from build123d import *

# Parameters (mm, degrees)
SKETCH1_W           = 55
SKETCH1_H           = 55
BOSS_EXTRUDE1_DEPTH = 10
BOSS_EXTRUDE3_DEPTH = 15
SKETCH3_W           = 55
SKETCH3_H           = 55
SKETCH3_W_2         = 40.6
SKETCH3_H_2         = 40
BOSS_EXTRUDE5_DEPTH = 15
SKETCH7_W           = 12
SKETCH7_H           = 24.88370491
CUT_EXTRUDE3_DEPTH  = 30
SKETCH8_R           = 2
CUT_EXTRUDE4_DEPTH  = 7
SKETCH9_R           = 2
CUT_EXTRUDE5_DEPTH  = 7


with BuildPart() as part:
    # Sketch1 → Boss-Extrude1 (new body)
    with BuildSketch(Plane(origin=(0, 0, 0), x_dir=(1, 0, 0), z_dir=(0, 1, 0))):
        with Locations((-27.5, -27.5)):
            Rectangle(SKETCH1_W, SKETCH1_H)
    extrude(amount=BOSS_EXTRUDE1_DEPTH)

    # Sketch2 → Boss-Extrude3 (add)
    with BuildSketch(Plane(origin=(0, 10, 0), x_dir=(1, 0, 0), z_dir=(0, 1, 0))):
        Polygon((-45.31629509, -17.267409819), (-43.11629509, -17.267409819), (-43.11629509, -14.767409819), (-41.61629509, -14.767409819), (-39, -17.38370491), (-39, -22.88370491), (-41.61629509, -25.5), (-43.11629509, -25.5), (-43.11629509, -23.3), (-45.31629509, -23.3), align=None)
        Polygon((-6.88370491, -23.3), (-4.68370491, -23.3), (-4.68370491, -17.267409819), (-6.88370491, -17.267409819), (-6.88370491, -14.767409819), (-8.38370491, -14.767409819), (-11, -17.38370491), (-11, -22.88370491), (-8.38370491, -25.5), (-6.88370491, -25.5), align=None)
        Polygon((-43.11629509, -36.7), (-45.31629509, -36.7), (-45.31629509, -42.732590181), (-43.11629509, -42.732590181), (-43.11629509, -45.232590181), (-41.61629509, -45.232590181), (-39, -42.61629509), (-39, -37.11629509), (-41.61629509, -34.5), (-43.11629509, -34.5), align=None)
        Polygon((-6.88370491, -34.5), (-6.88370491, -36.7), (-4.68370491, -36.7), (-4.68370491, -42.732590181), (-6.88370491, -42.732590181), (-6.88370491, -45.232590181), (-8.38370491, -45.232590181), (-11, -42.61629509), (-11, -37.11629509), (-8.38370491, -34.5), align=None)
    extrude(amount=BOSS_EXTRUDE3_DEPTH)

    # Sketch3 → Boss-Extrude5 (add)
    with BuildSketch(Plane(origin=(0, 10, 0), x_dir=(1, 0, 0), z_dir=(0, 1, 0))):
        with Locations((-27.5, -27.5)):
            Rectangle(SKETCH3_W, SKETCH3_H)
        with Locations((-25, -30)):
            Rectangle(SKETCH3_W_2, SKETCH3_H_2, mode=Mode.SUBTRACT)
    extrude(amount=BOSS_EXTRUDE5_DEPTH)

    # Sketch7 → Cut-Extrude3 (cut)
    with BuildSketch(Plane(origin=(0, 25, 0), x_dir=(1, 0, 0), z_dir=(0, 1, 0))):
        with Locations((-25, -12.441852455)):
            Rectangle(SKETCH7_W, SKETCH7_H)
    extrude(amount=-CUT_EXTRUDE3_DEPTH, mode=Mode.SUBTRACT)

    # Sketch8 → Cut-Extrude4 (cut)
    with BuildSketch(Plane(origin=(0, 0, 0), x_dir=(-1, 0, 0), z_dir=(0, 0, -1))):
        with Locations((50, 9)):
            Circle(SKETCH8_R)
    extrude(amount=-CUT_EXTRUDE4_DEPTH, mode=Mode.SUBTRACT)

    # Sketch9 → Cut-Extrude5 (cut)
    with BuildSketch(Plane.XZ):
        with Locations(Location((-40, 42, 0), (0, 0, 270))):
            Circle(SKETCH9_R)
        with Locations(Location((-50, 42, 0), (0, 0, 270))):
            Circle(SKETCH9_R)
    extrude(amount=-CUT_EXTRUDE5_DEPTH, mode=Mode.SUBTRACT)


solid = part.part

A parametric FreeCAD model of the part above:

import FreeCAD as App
import Part
import Sketcher


def add_polygon(sketch, points):
    """Adds a closed chain of lines whose ends are joined by coincident constraints."""
    first, n = sketch.GeometryCount, len(points)
    for a, b in zip(points, points[1:] + points[:1]):
        sketch.addGeometry(Part.LineSegment(App.Vector(*a, 0), App.Vector(*b, 0)), False)
    for i in range(n):
        sketch.addConstraint(Sketcher.Constraint("Coincident", first + i, 2, first + (i + 1) % n, 1))

doc = App.newDocument("Part")
params = doc.addObject("Spreadsheet::Sheet", "Params")
for row, (alias, value) in enumerate([
    ("sketch1_width", "55 mm"),
    ("pad1_length", "10 mm"),
    ("sketch2_width", "2.2 mm"),
    ("sketch2_width2", "1.5 mm"),
    ("sketch2_height", "5.5 mm"),
    ("sketch2_height2", "2.5 mm"),
    ("sketch2_length", "3.7 mm"),
    ("pad2_length", "15 mm"),
    ("sketch3_width", "55 mm"),
    ("sketch3_height", "40 mm"),
    ("sketch3_width2", "40.6 mm"),
    ("pad3_length", "15 mm"),
    ("sketch4_width", "12 mm"),
    ("pocket1_length", "30 mm"),
    ("sketch5_diameter", "4 mm"),
    ("pocket2_length", "7 mm"),
    ("sketch6_diameter", "4 mm"),
    ("pocket3_length", "7 mm"),
], start=1):
    params.set(f"A{row}", alias)
    params.set(f"B{row}", "=" + value)
    params.setAlias(f"B{row}", alias)

body = doc.addObject("PartDesign::Body", "Body")

# Sketch on XZ plane
sketch1 = body.newObject("Sketcher::SketchObject", "Sketch")
sketch1.AttachmentSupport = (doc.getObject("XZ_Plane"), [""])
sketch1.MapMode = "FlatFace"
add_polygon(sketch1, [(-55, 0), (-55, 55), (0, 55), (0, 0)])  # lines 0-3
sketch1.addConstraint(Sketcher.Constraint("Vertical", 0))
sketch1.addConstraint(Sketcher.Constraint("Horizontal", 1))
sketch1.addConstraint(Sketcher.Constraint("Vertical", 2))
sketch1.addConstraint(Sketcher.Constraint("Horizontal", 3))
sketch1.addConstraint(Sketcher.Constraint("Coincident", 2, 2, -1, 1))
sketch1.addConstraint(Sketcher.Constraint("Equal", 3, 0))
sketch1.addConstraint(Sketcher.Constraint("DistanceX", 1, 1, 1, 2, 55.0))
sketch1.setExpression("Constraints[10]", "Params.sketch1_width")
pad1 = body.newObject("PartDesign::Pad", "Pad")
pad1.Profile = sketch1
pad1.setExpression("Length", "Params.pad1_length")
pad1.Reversed = True

# Sketch on XZ plane
sketch2 = body.newObject("Sketcher::SketchObject", "Sketch001")
sketch2.AttachmentSupport = (doc.getObject("XZ_Plane"), [""])
sketch2.MapMode = "FlatFace"
sketch2.AttachmentOffset = App.Placement(App.Vector(0, 0, -10), App.Rotation())
add_polygon(sketch2, [(-43.1, 17.3), (-45.3, 17.3), (-45.3, 23.3), (-43.1, 23.3), (-43.1, 25.5), (-41.6, 25.5), (-39, 22.9), (-39, 17.4), (-41.6, 14.8), (-43.1, 14.8)])  # lines 0-9
add_polygon(sketch2, [(-6.9, 23.3), (-4.7, 23.3), (-4.7, 17.3), (-6.9, 17.3), (-6.9, 14.8), (-8.4, 14.8), (-11, 17.4), (-11, 22.9), (-8.4, 25.5), (-6.9, 25.5)])  # lines 10-19
add_polygon(sketch2, [(-43.1, 36.7), (-45.3, 36.7), (-45.3, 42.7), (-43.1, 42.7), (-43.1, 45.2), (-41.6, 45.2), (-39, 42.6), (-39, 37.1), (-41.6, 34.5), (-43.1, 34.5)])  # lines 20-29
add_polygon(sketch2, [(-6.9, 36.7), (-6.9, 34.5), (-8.4, 34.5), (-11, 37.1), (-11, 42.6), (-8.4, 45.2), (-6.9, 45.2), (-6.9, 42.7), (-4.7, 42.7), (-4.7, 36.7)])  # lines 30-39
sketch2.addConstraint(Sketcher.Constraint("Horizontal", 0))
sketch2.addConstraint(Sketcher.Constraint("Vertical", 1))
sketch2.addConstraint(Sketcher.Constraint("Horizontal", 2))
sketch2.addConstraint(Sketcher.Constraint("Vertical", 3))
sketch2.addConstraint(Sketcher.Constraint("Horizontal", 4))
sketch2.addConstraint(Sketcher.Constraint("Vertical", 6))
sketch2.addConstraint(Sketcher.Constraint("Horizontal", 8))
sketch2.addConstraint(Sketcher.Constraint("Vertical", 9))
sketch2.addConstraint(Sketcher.Constraint("Horizontal", 10))
sketch2.addConstraint(Sketcher.Constraint("Vertical", 11))
sketch2.addConstraint(Sketcher.Constraint("Horizontal", 12))
sketch2.addConstraint(Sketcher.Constraint("Vertical", 13))
sketch2.addConstraint(Sketcher.Constraint("Horizontal", 14))
sketch2.addConstraint(Sketcher.Constraint("Vertical", 16))
sketch2.addConstraint(Sketcher.Constraint("Horizontal", 18))
sketch2.addConstraint(Sketcher.Constraint("Vertical", 19))
sketch2.addConstraint(Sketcher.Constraint("Horizontal", 20))
sketch2.addConstraint(Sketcher.Constraint("Vertical", 21))
sketch2.addConstraint(Sketcher.Constraint("Horizontal", 22))
sketch2.addConstraint(Sketcher.Constraint("Vertical", 23))
sketch2.addConstraint(Sketcher.Constraint("Horizontal", 24))
sketch2.addConstraint(Sketcher.Constraint("Vertical", 26))
sketch2.addConstraint(Sketcher.Constraint("Horizontal", 28))
sketch2.addConstraint(Sketcher.Constraint("Vertical", 29))
sketch2.addConstraint(Sketcher.Constraint("Vertical", 30))
sketch2.addConstraint(Sketcher.Constraint("Horizontal", 31))
sketch2.addConstraint(Sketcher.Constraint("Vertical", 33))
sketch2.addConstraint(Sketcher.Constraint("Horizontal", 35))
sketch2.addConstraint(Sketcher.Constraint("Vertical", 36))
sketch2.addConstraint(Sketcher.Constraint("Horizontal", 37))
sketch2.addConstraint(Sketcher.Constraint("Vertical", 38))
sketch2.addConstraint(Sketcher.Constraint("Horizontal", 39))
sketch2.addConstraint(Sketcher.Constraint("Perpendicular", 5, 7))
sketch2.addConstraint(Sketcher.Constraint("Perpendicular", 7, 15))
sketch2.addConstraint(Sketcher.Constraint("Perpendicular", 15, 17))
sketch2.addConstraint(Sketcher.Constraint("Perpendicular", 17, 25))
sketch2.addConstraint(Sketcher.Constraint("Perpendicular", 25, 27))
sketch2.addConstraint(Sketcher.Constraint("Perpendicular", 27, 32))
sketch2.addConstraint(Sketcher.Constraint("Perpendicular", 32, 34))
sketch2.addConstraint(Sketcher.Constraint("Horizontal", 2, 2, 10, 2))
sketch2.addConstraint(Sketcher.Constraint("Horizontal", 9, 2, 11, 2))
sketch2.addConstraint(Sketcher.Constraint("Horizontal", 8, 2, 13, 2))
sketch2.addConstraint(Sketcher.Constraint("Horizontal", 6, 2, 15, 2))
sketch2.addConstraint(Sketcher.Constraint("Horizontal", 5, 2, 16, 2))
sketch2.addConstraint(Sketcher.Constraint("Horizontal", 4, 2, 17, 2))
sketch2.addConstraint(Sketcher.Constraint("Horizontal", 28, 2, 30, 2))
sketch2.addConstraint(Sketcher.Constraint("Horizontal", 26, 2, 32, 2))
sketch2.addConstraint(Sketcher.Constraint("Horizontal", 25, 2, 33, 2))
sketch2.addConstraint(Sketcher.Constraint("Horizontal", 24, 2, 34, 2))
sketch2.addConstraint(Sketcher.Constraint("Horizontal", 22, 2, 36, 2))
sketch2.addConstraint(Sketcher.Constraint("Horizontal", 29, 2, 38, 2))
sketch2.addConstraint(Sketcher.Constraint("Vertical", 4, 2, 7, 2))
sketch2.addConstraint(Sketcher.Constraint("Vertical", 3, 2, 8, 2))
sketch2.addConstraint(Sketcher.Constraint("Vertical", 14, 2, 17, 2))
sketch2.addConstraint(Sketcher.Constraint("Vertical", 13, 2, 18, 2))
sketch2.addConstraint(Sketcher.Constraint("Vertical", 1, 2, 20, 2))
sketch2.addConstraint(Sketcher.Constraint("Vertical", 9, 2, 22, 2))
sketch2.addConstraint(Sketcher.Constraint("Vertical", 7, 2, 24, 2))
sketch2.addConstraint(Sketcher.Constraint("Vertical", 6, 2, 25, 2))
sketch2.addConstraint(Sketcher.Constraint("Vertical", 24, 2, 27, 2))
sketch2.addConstraint(Sketcher.Constraint("Vertical", 23, 2, 28, 2))
sketch2.addConstraint(Sketcher.Constraint("Vertical", 19, 2, 30, 2))
sketch2.addConstraint(Sketcher.Constraint("Vertical", 17, 2, 31, 2))
sketch2.addConstraint(Sketcher.Constraint("Vertical", 30, 2, 35, 2))
sketch2.addConstraint(Sketcher.Constraint("Vertical", 11, 2, 37, 2))
sketch2.addConstraint(Sketcher.Constraint("Equal", 2, 10))
sketch2.addConstraint(Sketcher.Constraint("Equal", 8, 14))
sketch2.addConstraint(Sketcher.Constraint("Equal", 39, 3))
sketch2.addConstraint(Sketcher.Constraint("Equal", 11, 21))
sketch2.addConstraint(Sketcher.Constraint("Equal", 13, 23))
sketch2.addConstraint(Sketcher.Constraint("Equal", 16, 26))
sketch2.addConstraint(Sketcher.Constraint("DistanceX", 0, 2, 0, 1, 2.2))
sketch2.addConstraint(Sketcher.Constraint("DistanceX", 4, 1, 4, 2, 1.5))
sketch2.addConstraint(Sketcher.Constraint("DistanceY", 6, 2, 6, 1, 5.5))
sketch2.addConstraint(Sketcher.Constraint("DistanceY", 9, 1, 9, 2, 2.5))
sketch2.addConstraint(Sketcher.Constraint("DistanceX", 5, 2, -1, 1, 39.0))
sketch2.addConstraint(Sketcher.Constraint("DistanceX", 15, 2, -1, 1, 11.0))
sketch2.addConstraint(Sketcher.Constraint("DistanceY", 4, 2, 27, 2, 9.0))
sketch2.addConstraint(Sketcher.Constraint("Distance", 5, 3.7))
sketch2.addConstraint(Sketcher.Constraint("DistanceY", -1, 1, 1, 2, 23.3))
sketch2.setExpression("Constraints[111]", "Params.sketch2_width")
sketch2.setExpression("Constraints[112]", "Params.sketch2_width2")
sketch2.setExpression("Constraints[113]", "Params.sketch2_height")
sketch2.setExpression("Constraints[114]", "Params.sketch2_height2")
sketch2.setExpression("Constraints[118]", "Params.sketch2_length")
pad2 = body.newObject("PartDesign::Pad", "Pad001")
pad2.Profile = sketch2
pad2.setExpression("Length", "Params.pad2_length")
pad2.Reversed = True

# Sketch on XZ plane
sketch3 = body.newObject("Sketcher::SketchObject", "Sketch002")
sketch3.AttachmentSupport = (doc.getObject("XZ_Plane"), [""])
sketch3.MapMode = "FlatFace"
sketch3.AttachmentOffset = App.Placement(App.Vector(0, 0, -10), App.Rotation())
add_polygon(sketch3, [(-55, 0), (-55, 55), (0, 55), (0, 0)])  # lines 0-3
add_polygon(sketch3, [(-5, 50), (-45, 50), (-45, 10), (-5, 10)])  # lines 4-7
sketch3.addConstraint(Sketcher.Constraint("Vertical", 0))
sketch3.addConstraint(Sketcher.Constraint("Horizontal", 1))
sketch3.addConstraint(Sketcher.Constraint("Vertical", 2))
sketch3.addConstraint(Sketcher.Constraint("Horizontal", 3))
sketch3.addConstraint(Sketcher.Constraint("Horizontal", 4))
sketch3.addConstraint(Sketcher.Constraint("Vertical", 5))
sketch3.addConstraint(Sketcher.Constraint("Horizontal", 6))
sketch3.addConstraint(Sketcher.Constraint("Vertical", 7))
sketch3.addConstraint(Sketcher.Constraint("Coincident", 2, 2, -1, 1))
sketch3.addConstraint(Sketcher.Constraint("Equal", 3, 0))
sketch3.addConstraint(Sketcher.Constraint("DistanceX", 1, 1, 1, 2, 55.0))
sketch3.addConstraint(Sketcher.Constraint("DistanceY", 5, 2, 5, 1, 40.0))
sketch3.addConstraint(Sketcher.Constraint("DistanceX", 4, 2, 4, 1, 40.6))
sketch3.addConstraint(Sketcher.Constraint("DistanceY", -1, 1, 4, 2, 50.0))
sketch3.addConstraint(Sketcher.Constraint("DistanceX", 4, 2, -1, 1, 45.3))
sketch3.setExpression("Constraints[18]", "Params.sketch3_width")
sketch3.setExpression("Constraints[19]", "Params.sketch3_height")
sketch3.setExpression("Constraints[20]", "Params.sketch3_width2")
pad3 = body.newObject("PartDesign::Pad", "Pad002")
pad3.Profile = sketch3
pad3.setExpression("Length", "Params.pad3_length")
pad3.Reversed = True

# Sketch on XZ plane
sketch4 = body.newObject("Sketcher::SketchObject", "Sketch003")
sketch4.AttachmentSupport = (doc.getObject("XZ_Plane"), [""])
sketch4.MapMode = "FlatFace"
sketch4.AttachmentOffset = App.Placement(App.Vector(0, 0, -25), App.Rotation())
add_polygon(sketch4, [(-31, 0), (-31, 25), (-19, 25), (-19, 0)])  # lines 0-3
sketch4.addConstraint(Sketcher.Constraint("Vertical", 0))
sketch4.addConstraint(Sketcher.Constraint("Horizontal", 1))
sketch4.addConstraint(Sketcher.Constraint("Vertical", 2))
sketch4.addConstraint(Sketcher.Constraint("Horizontal", 3))
sketch4.addConstraint(Sketcher.Constraint("PointOnObject", 2, 2, -1))
sketch4.addConstraint(Sketcher.Constraint("DistanceX", 1, 1, 1, 2, 12.0))
sketch4.addConstraint(Sketcher.Constraint("DistanceX", 0, 2, -1, 1, 31.0))
sketch4.addConstraint(Sketcher.Constraint("DistanceY", 0, 1, 0, 2, 24.883705))
sketch4.setExpression("Constraints[9]", "Params.sketch4_width")
pocket1 = body.newObject("PartDesign::Pocket", "Pocket")
pocket1.Profile = sketch4
pocket1.setExpression("Length", "Params.pocket1_length")
pocket1.Reversed = True

# Sketch on XY plane
sketch5 = body.newObject("Sketcher::SketchObject", "Sketch004")
sketch5.AttachmentSupport = (doc.getObject("XY_Plane"), [""])
sketch5.MapMode = "FlatFace"
sketch5.addGeometry(Part.Circle(App.Vector(-50, 9, 0), App.Vector(0, 0, 1), 2), False)
sketch5.addConstraint(Sketcher.Constraint("Diameter", 0, 4.0))
sketch5.addConstraint(Sketcher.Constraint("DistanceX", 0, 3, -1, 1, 50.0))
sketch5.addConstraint(Sketcher.Constraint("DistanceY", -1, 1, 0, 3, 9.0))
sketch5.setExpression("Constraints[0]", "Params.sketch5_diameter")
pocket2 = body.newObject("PartDesign::Pocket", "Pocket001")
pocket2.Profile = sketch5
pocket2.setExpression("Length", "Params.pocket2_length")
pocket2.Reversed = True

# Sketch on XZ plane
sketch6 = body.newObject("Sketcher::SketchObject", "Sketch005")
sketch6.AttachmentSupport = (doc.getObject("XZ_Plane"), [""])
sketch6.MapMode = "FlatFace"
sketch6.addGeometry(Part.Circle(App.Vector(-40, 42, 0), App.Vector(0, 0, 1), 2), False)
sketch6.addGeometry(Part.Circle(App.Vector(-50, 42, 0), App.Vector(0, 0, 1), 2), False)
sketch6.addConstraint(Sketcher.Constraint("Equal", 0, 1))
sketch6.addConstraint(Sketcher.Constraint("Horizontal", 0, 3, 1, 3))
sketch6.addConstraint(Sketcher.Constraint("Diameter", 0, 4.0))
sketch6.addConstraint(Sketcher.Constraint("DistanceX", 0, 3, -1, 1, 40.0))
sketch6.addConstraint(Sketcher.Constraint("DistanceY", -1, 1, 0, 3, 42.0))
sketch6.addConstraint(Sketcher.Constraint("DistanceX", 1, 3, -1, 1, 50.0))
sketch6.setExpression("Constraints[2]", "Params.sketch6_diameter")
pocket3 = body.newObject("PartDesign::Pocket", "Pocket002")
pocket3.Profile = sketch6
pocket3.setExpression("Length", "Params.pocket3_length")

doc.recompute()
